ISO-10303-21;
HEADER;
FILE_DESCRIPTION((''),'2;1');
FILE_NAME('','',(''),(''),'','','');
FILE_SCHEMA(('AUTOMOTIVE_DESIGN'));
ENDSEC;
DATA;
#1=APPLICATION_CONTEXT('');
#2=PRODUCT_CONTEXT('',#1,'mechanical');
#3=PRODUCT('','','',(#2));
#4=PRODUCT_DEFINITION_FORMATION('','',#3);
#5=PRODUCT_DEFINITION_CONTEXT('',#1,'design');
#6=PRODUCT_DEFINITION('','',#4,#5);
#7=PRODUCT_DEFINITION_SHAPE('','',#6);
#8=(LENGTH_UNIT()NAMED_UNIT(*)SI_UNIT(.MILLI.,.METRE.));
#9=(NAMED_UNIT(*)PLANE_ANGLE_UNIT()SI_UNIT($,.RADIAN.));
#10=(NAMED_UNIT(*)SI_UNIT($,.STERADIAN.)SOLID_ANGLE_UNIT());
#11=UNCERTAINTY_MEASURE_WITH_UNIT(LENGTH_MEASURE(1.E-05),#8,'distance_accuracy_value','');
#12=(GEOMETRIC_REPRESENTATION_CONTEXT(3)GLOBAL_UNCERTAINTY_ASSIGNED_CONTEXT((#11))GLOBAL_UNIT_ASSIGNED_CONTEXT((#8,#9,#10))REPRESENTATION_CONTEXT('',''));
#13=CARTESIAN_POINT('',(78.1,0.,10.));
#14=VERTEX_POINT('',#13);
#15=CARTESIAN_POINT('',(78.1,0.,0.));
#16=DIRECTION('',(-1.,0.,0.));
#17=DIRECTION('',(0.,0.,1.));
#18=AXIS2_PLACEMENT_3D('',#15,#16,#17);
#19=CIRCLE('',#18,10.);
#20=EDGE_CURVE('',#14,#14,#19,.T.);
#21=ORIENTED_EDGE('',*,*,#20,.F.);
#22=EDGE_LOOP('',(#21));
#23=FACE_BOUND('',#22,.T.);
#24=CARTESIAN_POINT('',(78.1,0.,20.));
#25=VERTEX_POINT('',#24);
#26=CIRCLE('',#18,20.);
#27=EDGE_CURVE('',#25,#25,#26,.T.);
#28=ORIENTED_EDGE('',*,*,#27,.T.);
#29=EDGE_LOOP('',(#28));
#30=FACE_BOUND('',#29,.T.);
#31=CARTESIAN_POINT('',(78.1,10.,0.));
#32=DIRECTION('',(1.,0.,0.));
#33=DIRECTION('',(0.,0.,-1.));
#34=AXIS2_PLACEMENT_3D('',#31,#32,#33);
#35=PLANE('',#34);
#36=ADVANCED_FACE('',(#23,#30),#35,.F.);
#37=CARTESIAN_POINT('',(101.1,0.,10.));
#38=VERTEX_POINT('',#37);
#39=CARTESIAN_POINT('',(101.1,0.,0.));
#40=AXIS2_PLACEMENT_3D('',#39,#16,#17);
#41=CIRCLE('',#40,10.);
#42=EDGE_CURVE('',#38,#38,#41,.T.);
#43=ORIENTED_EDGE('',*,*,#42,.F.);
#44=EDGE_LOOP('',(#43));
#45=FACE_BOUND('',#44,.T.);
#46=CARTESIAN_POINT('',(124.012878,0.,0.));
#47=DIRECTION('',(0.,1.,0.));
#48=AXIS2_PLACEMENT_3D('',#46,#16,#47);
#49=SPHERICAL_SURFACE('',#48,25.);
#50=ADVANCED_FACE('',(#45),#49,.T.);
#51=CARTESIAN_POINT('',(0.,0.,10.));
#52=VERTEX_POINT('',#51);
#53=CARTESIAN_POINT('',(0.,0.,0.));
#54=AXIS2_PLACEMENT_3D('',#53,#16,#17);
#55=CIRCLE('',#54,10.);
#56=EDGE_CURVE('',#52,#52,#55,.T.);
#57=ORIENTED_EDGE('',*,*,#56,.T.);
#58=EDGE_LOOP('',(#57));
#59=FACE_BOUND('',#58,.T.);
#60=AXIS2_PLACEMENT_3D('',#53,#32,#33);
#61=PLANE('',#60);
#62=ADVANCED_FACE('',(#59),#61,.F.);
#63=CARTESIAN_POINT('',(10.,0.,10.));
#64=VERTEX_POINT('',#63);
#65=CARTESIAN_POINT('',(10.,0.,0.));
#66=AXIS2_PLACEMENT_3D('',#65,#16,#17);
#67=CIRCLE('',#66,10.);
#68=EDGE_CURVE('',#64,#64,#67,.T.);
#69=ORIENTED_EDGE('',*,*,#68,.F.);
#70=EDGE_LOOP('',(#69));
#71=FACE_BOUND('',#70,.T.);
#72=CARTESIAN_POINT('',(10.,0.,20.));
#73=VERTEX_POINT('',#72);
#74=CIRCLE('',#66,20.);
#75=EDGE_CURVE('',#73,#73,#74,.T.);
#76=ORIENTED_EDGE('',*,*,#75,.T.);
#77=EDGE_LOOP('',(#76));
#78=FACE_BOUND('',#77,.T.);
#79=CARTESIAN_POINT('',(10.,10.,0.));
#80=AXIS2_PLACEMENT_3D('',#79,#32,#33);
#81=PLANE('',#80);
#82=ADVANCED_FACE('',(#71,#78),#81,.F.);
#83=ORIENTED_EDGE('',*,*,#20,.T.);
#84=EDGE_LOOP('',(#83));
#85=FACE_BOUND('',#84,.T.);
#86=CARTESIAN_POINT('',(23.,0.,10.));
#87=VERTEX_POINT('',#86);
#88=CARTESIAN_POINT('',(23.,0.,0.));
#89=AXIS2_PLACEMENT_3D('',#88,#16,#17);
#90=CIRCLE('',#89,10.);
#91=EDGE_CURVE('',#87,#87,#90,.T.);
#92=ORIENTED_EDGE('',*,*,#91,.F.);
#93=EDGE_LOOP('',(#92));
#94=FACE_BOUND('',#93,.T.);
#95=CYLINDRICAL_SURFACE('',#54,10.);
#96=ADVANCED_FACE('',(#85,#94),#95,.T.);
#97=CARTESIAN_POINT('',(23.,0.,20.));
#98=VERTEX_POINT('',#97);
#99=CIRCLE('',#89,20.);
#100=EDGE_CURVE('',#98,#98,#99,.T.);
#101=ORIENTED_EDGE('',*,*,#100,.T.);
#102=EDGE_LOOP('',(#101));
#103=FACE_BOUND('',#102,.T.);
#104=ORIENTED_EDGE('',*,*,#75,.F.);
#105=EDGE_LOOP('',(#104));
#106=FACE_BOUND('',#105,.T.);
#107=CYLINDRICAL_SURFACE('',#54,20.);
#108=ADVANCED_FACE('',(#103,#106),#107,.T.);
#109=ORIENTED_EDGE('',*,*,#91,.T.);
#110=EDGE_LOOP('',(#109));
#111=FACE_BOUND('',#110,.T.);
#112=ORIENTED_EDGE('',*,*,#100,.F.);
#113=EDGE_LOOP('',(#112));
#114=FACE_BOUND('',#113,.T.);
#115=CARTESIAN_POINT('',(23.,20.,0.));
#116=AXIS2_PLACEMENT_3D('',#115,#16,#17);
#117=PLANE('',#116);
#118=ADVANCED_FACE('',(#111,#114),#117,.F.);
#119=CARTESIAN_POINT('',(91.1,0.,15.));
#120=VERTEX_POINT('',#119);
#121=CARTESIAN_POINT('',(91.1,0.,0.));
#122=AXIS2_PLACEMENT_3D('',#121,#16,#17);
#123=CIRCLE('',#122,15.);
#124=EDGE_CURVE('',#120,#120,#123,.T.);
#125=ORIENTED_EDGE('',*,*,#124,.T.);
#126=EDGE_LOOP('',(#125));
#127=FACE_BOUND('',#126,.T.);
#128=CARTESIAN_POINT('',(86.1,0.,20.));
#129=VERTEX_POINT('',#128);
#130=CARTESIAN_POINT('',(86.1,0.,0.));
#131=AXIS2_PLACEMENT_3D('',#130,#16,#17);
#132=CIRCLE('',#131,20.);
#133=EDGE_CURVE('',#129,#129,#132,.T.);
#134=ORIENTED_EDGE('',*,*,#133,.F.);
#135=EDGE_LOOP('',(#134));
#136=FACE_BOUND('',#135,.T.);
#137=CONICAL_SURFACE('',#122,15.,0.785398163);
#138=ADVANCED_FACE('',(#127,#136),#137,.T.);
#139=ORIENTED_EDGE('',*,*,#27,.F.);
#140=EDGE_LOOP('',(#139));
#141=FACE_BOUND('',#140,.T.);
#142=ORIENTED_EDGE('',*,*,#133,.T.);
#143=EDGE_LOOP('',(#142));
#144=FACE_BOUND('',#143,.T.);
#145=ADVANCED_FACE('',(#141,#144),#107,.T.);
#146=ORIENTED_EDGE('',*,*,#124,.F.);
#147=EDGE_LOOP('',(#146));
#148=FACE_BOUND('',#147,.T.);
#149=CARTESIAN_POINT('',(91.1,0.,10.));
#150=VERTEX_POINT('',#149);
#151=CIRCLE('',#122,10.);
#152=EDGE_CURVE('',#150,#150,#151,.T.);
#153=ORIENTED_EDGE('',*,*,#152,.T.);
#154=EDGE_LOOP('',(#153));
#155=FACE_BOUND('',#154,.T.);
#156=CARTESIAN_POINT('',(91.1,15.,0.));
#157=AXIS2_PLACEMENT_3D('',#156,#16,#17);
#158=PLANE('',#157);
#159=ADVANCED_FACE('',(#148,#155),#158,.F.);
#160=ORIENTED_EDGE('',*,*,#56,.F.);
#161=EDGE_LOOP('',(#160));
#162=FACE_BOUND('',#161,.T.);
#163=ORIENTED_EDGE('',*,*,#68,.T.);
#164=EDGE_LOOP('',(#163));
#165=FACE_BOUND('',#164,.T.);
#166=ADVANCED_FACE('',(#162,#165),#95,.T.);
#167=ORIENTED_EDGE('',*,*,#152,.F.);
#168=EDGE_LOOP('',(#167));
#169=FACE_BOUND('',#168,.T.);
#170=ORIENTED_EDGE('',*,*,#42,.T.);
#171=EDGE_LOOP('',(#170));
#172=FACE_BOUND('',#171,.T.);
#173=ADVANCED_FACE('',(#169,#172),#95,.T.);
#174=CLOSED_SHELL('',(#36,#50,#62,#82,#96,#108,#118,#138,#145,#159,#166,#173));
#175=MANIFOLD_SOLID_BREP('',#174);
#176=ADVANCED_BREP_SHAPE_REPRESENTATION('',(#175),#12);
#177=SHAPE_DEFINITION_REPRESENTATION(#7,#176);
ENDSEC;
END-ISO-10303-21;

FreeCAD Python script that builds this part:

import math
import FreeCAD as App
import Part
import Sketcher
from FreeCAD import Vector
Q = App.Units.Quantity

doc = App.newDocument("Part")
body = doc.addObject("PartDesign::Body", "Body")

# Sketch on XY plane
sketch1 = body.newObject("Sketcher::SketchObject", "Sketch")
sketch1.AttachmentSupport = (doc.getObject("XY_Plane"), [""])
sketch1.MapMode = "FlatFace"
sketch1.addGeometry([
    Part.LineSegment(Vector(0, 10, 0), Vector(0, 0, 0)),  # 0
    Part.LineSegment(Vector(0, 0, 0), Vector(149, 0, 0)),  # 1
    Part.ArcOfCircle(Part.Circle(Vector(124, 0, 0), Vector(0, 0, 1), 25), math.radians(0), math.radians(156)),  # 2
    Part.LineSegment(Vector(101, 10, 0), Vector(91, 10, 0)),  # 3
    Part.LineSegment(Vector(91, 10, 0), Vector(91, 15, 0)),  # 4
    Part.LineSegment(Vector(91, 15, 0), Vector(86, 20, 0)),  # 5
    Part.LineSegment(Vector(86, 20, 0), Vector(78, 20, 0)),  # 6
    Part.LineSegment(Vector(78, 20, 0), Vector(78, 10, 0)),  # 7
    Part.LineSegment(Vector(78, 10, 0), Vector(23, 10, 0)),  # 8
    Part.LineSegment(Vector(23, 10, 0), Vector(23, 20, 0)),  # 9
    Part.LineSegment(Vector(23, 20, 0), Vector(10, 20, 0)),  # 10
    Part.LineSegment(Vector(10, 20, 0), Vector(10, 10, 0)),  # 11
    Part.LineSegment(Vector(10, 10, 0), Vector(0, 10, 0)),  # 12
], False)
sketch1.addConstraint([
    Sketcher.Constraint("Coincident", 0, 2, 1, 1),
    Sketcher.Constraint("Coincident", 1, 2, 2, 1),
    Sketcher.Constraint("Coincident", 2, 2, 3, 1),
    Sketcher.Constraint("Coincident", 3, 2, 4, 1),
    Sketcher.Constraint("Coincident", 4, 2, 5, 1),
    Sketcher.Constraint("Coincident", 5, 2, 6, 1),
    Sketcher.Constraint("Coincident", 6, 2, 7, 1),
    Sketcher.Constraint("Coincident", 7, 2, 8, 1),
    Sketcher.Constraint("Coincident", 8, 2, 9, 1),
    Sketcher.Constraint("Coincident", 9, 2, 10, 1),
    Sketcher.Constraint("Coincident", 10, 2, 11, 1),
    Sketcher.Constraint("Coincident", 11, 2, 12, 1),
    Sketcher.Constraint("Coincident", 12, 2, 0, 1),
    Sketcher.Constraint("Vertical", 0),
    Sketcher.Constraint("Horizontal", 1),
    Sketcher.Constraint("Horizontal", 3),
    Sketcher.Constraint("Vertical", 4),
    Sketcher.Constraint("Horizontal", 6),
    Sketcher.Constraint("Vertical", 7),
    Sketcher.Constraint("Horizontal", 8),
    Sketcher.Constraint("Vertical", 9),
    Sketcher.Constraint("Horizontal", 10),
    Sketcher.Constraint("Vertical", 11),
    Sketcher.Constraint("Horizontal", 12),
    Sketcher.Constraint("Coincident", 0, 2, -1, 1),
    Sketcher.Constraint("PointOnObject", 2, 3, -1),
    Sketcher.Constraint("Horizontal", 3, 2, 7, 2),
    Sketcher.Constraint("Horizontal", 6, 2, 9, 2),
    Sketcher.Constraint("Horizontal", 8, 2, 11, 2),
    Sketcher.Constraint("Equal", 3, 12),
    Sketcher.Constraint("Equal", 12, 0),
    Sketcher.Constraint("Equal", 0, 7),
    Sketcher.Constraint("Radius", 2, 25.0),
    Sketcher.Constraint("DistanceX", 3, 2, 3, 1, 10.0),
    Sketcher.Constraint("DistanceX", 6, 2, 6, 1, 8.0),
    Sketcher.Constraint("DistanceX", 10, 2, 10, 1, 13.0),
    Sketcher.Constraint("DistanceY", 4, 1, 4, 2, 5.0),
    Sketcher.Constraint("Angle", 5, Q("135 deg")),
    Sketcher.Constraint("DistanceX", 8, 2, 8, 1, 55.1),
])
revolution = body.newObject("PartDesign::Revolution", "Revolution")
revolution.Profile = sketch1
revolution.ReferenceAxis = (sketch1, ["H_Axis"])
revolution.Angle = 360

doc.recompute()
